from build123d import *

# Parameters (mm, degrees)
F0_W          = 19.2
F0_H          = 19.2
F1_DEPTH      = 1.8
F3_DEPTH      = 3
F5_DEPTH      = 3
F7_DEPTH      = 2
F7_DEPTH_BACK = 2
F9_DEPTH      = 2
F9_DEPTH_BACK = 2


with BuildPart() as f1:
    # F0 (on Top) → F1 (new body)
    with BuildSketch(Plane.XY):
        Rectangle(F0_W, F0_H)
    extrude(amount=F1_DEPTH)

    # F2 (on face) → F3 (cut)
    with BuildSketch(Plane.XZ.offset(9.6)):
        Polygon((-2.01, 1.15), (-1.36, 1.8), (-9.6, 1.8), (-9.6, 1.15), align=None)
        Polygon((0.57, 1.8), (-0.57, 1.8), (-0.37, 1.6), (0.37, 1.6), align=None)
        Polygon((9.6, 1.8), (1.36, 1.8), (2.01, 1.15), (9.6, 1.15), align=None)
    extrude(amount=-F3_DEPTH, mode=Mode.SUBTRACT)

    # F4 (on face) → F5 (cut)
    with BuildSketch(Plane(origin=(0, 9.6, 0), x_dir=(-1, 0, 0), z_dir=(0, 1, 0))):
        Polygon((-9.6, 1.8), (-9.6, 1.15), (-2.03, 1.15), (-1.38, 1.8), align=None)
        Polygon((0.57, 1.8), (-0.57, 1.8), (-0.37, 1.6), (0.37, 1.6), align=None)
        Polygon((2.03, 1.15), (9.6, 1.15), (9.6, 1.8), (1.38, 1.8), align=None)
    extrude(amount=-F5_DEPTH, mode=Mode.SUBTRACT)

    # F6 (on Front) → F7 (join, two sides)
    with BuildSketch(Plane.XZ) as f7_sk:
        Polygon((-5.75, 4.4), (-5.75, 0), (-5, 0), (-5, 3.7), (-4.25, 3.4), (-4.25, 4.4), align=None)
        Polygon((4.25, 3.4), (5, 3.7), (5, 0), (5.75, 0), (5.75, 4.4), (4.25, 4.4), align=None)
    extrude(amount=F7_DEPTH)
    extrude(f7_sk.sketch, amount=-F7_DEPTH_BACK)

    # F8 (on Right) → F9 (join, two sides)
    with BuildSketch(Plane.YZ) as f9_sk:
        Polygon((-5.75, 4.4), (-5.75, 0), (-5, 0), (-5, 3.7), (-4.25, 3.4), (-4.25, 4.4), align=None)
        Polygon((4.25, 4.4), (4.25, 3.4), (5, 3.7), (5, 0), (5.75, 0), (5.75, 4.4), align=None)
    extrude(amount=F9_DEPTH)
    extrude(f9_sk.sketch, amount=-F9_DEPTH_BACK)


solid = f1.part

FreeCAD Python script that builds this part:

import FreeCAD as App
import Part
import Sketcher
from FreeCAD import Vector
Q = App.Units.Quantity

doc = App.newDocument("Part")
params = doc.addObject("Spreadsheet::Sheet", "Params")
for row, (alias, value) in enumerate([
    ("sketch1_width", "19.2 mm"),
    ("pad1_length", "1.8 mm"),
    ("sketch2_width", "8.24 mm"),
    ("sketch2_width2", "7.59 mm"),
    ("sketch2_width3", "1.14 mm"),
    ("sketch2_width4", "0.74 mm"),
    ("pocket1_length", "3 mm"),
    ("sketch3_width", "7.57 mm"),
    ("sketch3_width2", "8.22 mm"),
    ("sketch3_width3", "1.14 mm"),
    ("sketch3_width4", "0.74 mm"),
    ("pocket2_length", "3 mm"),
    ("sketch4_height", "1 mm"),
    ("sketch4_width", "1.5 mm"),
    ("sketch4_height2", "4.4 mm"),
    ("sketch4_height3", "3.7 mm"),
    ("pad2_length", "2 mm"),
    ("pad2_length2", "2 mm"),
    ("sketch5_height", "1 mm"),
    ("sketch5_width", "1.5 mm"),
    ("sketch5_height2", "4.4 mm"),
    ("sketch5_height3", "3.7 mm"),
    ("pad3_length", "2 mm"),
    ("pad3_length2", "2 mm"),
], start=1):
    params.set(f"A{row}", alias)
    params.set(f"B{row}", "=" + value)
    params.setAlias(f"B{row}", alias)

body = doc.addObject("PartDesign::Body", "Body")

# Sketch on XY plane
sketch1 = body.newObject("Sketcher::SketchObject", "Sketch")
sketch1.AttachmentSupport = (doc.getObject("XY_Plane"), [""])
sketch1.MapMode = "FlatFace"
sketch1.addGeometry(Part.LineSegment(Vector(-10, 10, 0), Vector(-10, -10, 0)), False)
sketch1.addGeometry(Part.LineSegment(Vector(-10, -10, 0), Vector(10, -10, 0)), False)
sketch1.addGeometry(Part.LineSegment(Vector(10, -10, 0), Vector(10, 10, 0)), False)
sketch1.addGeometry(Part.LineSegment(Vector(10, 10, 0), Vector(-10, 10, 0)), False)
sketch1.addConstraint(Sketcher.Constraint("Coincident", 0, 2, 1, 1))
sketch1.addConstraint(Sketcher.Constraint("Coincident", 1, 2, 2, 1))
sketch1.addConstraint(Sketcher.Constraint("Coincident", 2, 2, 3, 1))
sketch1.addConstraint(Sketcher.Constraint("Coincident", 3, 2, 0, 1))
sketch1.addConstraint(Sketcher.Constraint("Vertical", 0))
sketch1.addConstraint(Sketcher.Constraint("Horizontal", 1))
sketch1.addConstraint(Sketcher.Constraint("Vertical", 2))
sketch1.addConstraint(Sketcher.Constraint("Horizontal", 3))
sketch1.addConstraint(Sketcher.Constraint("Symmetric", 0, 2, 2, 2, -1, 1))
sketch1.addConstraint(Sketcher.Constraint("Equal", 3, 0))
sketch1.addConstraint(Sketcher.Constraint("DistanceX", 1, 1, 1, 2, Q("19.2 mm")))
sketch1.setExpression("Constraints[10]", "Params.sketch1_width")
pad1 = body.newObject("PartDesign::Pad", "Pad")
pad1.Profile = sketch1
pad1.setExpression("Length", "Params.pad1_length")

# Sketch on XZ plane
sketch2 = body.newObject("Sketcher::SketchObject", "Sketch001")
sketch2.AttachmentSupport = (doc.getObject("XZ_Plane"), [""])
sketch2.MapMode = "FlatFace"
sketch2.AttachmentOffset = App.Placement(Vector(0, 0, 9.6), App.Rotation())
sketch2.addGeometry(Part.LineSegment(Vector(-2.01, 1.15, 0), Vector(-1.36, 1.8, 0)), False)
sketch2.addGeometry(Part.LineSegment(Vector(-1.36, 1.8, 0), Vector(-9.6, 1.8, 0)), False)
sketch2.addGeometry(Part.LineSegment(Vector(-9.6, 1.8, 0), Vector(-9.6, 1.15, 0)), False)
sketch2.addGeometry(Part.LineSegment(Vector(-9.6, 1.15, 0), Vector(-2.01, 1.15, 0)), False)
sketch2.addGeometry(Part.LineSegment(Vector(0.57, 1.8, 0), Vector(-0.57, 1.8, 0)), False)
sketch2.addGeometry(Part.LineSegment(Vector(-0.57, 1.8, 0), Vector(-0.37, 1.6, 0)), False)
sketch2.addGeometry(Part.LineSegment(Vector(-0.37, 1.6, 0), Vector(0.37, 1.6, 0)), False)
sketch2.addGeometry(Part.LineSegment(Vector(0.37, 1.6, 0), Vector(0.57, 1.8, 0)), False)
sketch2.addGeometry(Part.LineSegment(Vector(9.6, 1.8, 0), Vector(1.36, 1.8, 0)), False)
sketch2.addGeometry(Part.LineSegment(Vector(1.36, 1.8, 0), Vector(2.01, 1.15, 0)), False)
sketch2.addGeometry(Part.LineSegment(Vector(2.01, 1.15, 0), Vector(9.6, 1.15, 0)), False)
sketch2.addGeometry(Part.LineSegment(Vector(9.6, 1.15, 0), Vector(9.6, 1.8, 0)), False)
sketch2.addConstraint(Sketcher.Constraint("Coincident", 0, 2, 1, 1))
sketch2.addConstraint(Sketcher.Constraint("Coincident", 1, 2, 2, 1))
sketch2.addConstraint(Sketcher.Constraint("Coincident", 2, 2, 3, 1))
sketch2.addConstraint(Sketcher.Constraint("Coincident", 3, 2, 0, 1))
sketch2.addConstraint(Sketcher.Constraint("Coincident", 4, 2, 5, 1))
sketch2.addConstraint(Sketcher.Constraint("Coincident", 5, 2, 6, 1))
sketch2.addConstraint(Sketcher.Constraint("Coincident", 6, 2, 7, 1))
sketch2.addConstraint(Sketcher.Constraint("Coincident", 7, 2, 4, 1))
sketch2.addConstraint(Sketcher.Constraint("Coincident", 8, 2, 9, 1))
sketch2.addConstraint(Sketcher.Constraint("Coincident", 9, 2, 10, 1))
sketch2.addConstraint(Sketcher.Constraint("Coincident", 10, 2, 11, 1))
sketch2.addConstraint(Sketcher.Constraint("Coincident", 11, 2, 8, 1))
sketch2.addConstraint(Sketcher.Constraint("Horizontal", 1))
sketch2.addConstraint(Sketcher.Constraint("Vertical", 2))
sketch2.addConstraint(Sketcher.Constraint("Horizontal", 3))
sketch2.addConstraint(Sketcher.Constraint("Horizontal", 4))
sketch2.addConstraint(Sketcher.Constraint("Horizontal", 6))
sketch2.addConstraint(Sketcher.Constraint("Horizontal", 8))
sketch2.addConstraint(Sketcher.Constraint("Horizontal", 10))
sketch2.addConstraint(Sketcher.Constraint("Vertical", 11))
sketch2.addConstraint(Sketcher.Constraint("Symmetric", 0, 2, 8, 2, -2))
sketch2.addConstraint(Sketcher.Constraint("Symmetric", 3, 2, 9, 2, -2))
sketch2.addConstraint(Sketcher.Constraint("Perpendicular", 0, 5))
sketch2.addConstraint(Sketcher.Constraint("Perpendicular", 5, 7))
sketch2.addConstraint(Sketcher.Constraint("Perpendicular", 7, 9))
sketch2.addConstraint(Sketcher.Constraint("Horizontal", 1, 2, 4, 2))
sketch2.addConstraint(Sketcher.Constraint("Equal", 1, 8))
sketch2.addConstraint(Sketcher.Constraint("DistanceX", 1, 2, 1, 1, Q("8.24 mm")))
sketch2.addConstraint(Sketcher.Constraint("DistanceX", 3, 1, 3, 2, Q("7.59 mm")))
sketch2.addConstraint(Sketcher.Constraint("DistanceX", 4, 2, 4, 1, Q("1.14 mm")))
sketch2.addConstraint(Sketcher.Constraint("DistanceX", 6, 1, 6, 2, Q("0.74 mm")))
sketch2.addConstraint(Sketcher.Constraint("DistanceY", -1, 1, 0, 2, Q("1.8 mm")))
sketch2.addConstraint(Sketcher.Constraint("DistanceX", 1, 2, -1, 1, Q("9.6 mm")))
sketch2.addConstraint(Sketcher.Constraint("DistanceX", 4, 2, -1, 1, Q("0.57 mm")))
sketch2.setExpression("Constraints[27]", "Params.sketch2_width")
sketch2.setExpression("Constraints[28]", "Params.sketch2_width2")
sketch2.setExpression("Constraints[29]", "Params.sketch2_width3")
sketch2.setExpression("Constraints[30]", "Params.sketch2_width4")
pocket1 = body.newObject("PartDesign::Pocket", "Pocket")
pocket1.Profile = sketch2
pocket1.setExpression("Length", "Params.pocket1_length")

# Sketch on XZ plane
sketch3 = body.newObject("Sketcher::SketchObject", "Sketch002")
sketch3.AttachmentSupport = (doc.getObject("XZ_Plane"), [""])
sketch3.MapMode = "FlatFace"
sketch3.AttachmentOffset = App.Placement(Vector(0, 0, -9.6), App.Rotation())
sketch3.addGeometry(Part.LineSegment(Vector(9.6, 1.8, 0), Vector(9.6, 1.15, 0)), False)
sketch3.addGeometry(Part.LineSegment(Vector(9.6, 1.15, 0), Vector(2.03, 1.15, 0)), False)
sketch3.addGeometry(Part.LineSegment(Vector(2.03, 1.15, 0), Vector(1.38, 1.8, 0)), False)
sketch3.addGeometry(Part.LineSegment(Vector(1.38, 1.8, 0), Vector(9.6, 1.8, 0)), False)
sketch3.addGeometry(Part.LineSegment(Vector(-0.57, 1.8, 0), Vector(0.57, 1.8, 0)), False)
sketch3.addGeometry(Part.LineSegment(Vector(0.57, 1.8, 0), Vector(0.37, 1.6, 0)), False)
sketch3.addGeometry(Part.LineSegment(Vector(0.37, 1.6, 0), Vector(-0.37, 1.6, 0)), False)
sketch3.addGeometry(Part.LineSegment(Vector(-0.37, 1.6, 0), Vector(-0.57, 1.8, 0)), False)
sketch3.addGeometry(Part.LineSegment(Vector(-2.03, 1.15, 0), Vector(-9.6, 1.15, 0)), False)
sketch3.addGeometry(Part.LineSegment(Vector(-9.6, 1.15, 0), Vector(-9.6, 1.8, 0)), False)
sketch3.addGeometry(Part.LineSegment(Vector(-9.6, 1.8, 0), Vector(-1.38, 1.8, 0)), False)
sketch3.addGeometry(Part.LineSegment(Vector(-1.38, 1.8, 0), Vector(-2.03, 1.15, 0)), False)
sketch3.addConstraint(Sketcher.Constraint("Coincident", 0, 2, 1, 1))
sketch3.addConstraint(Sketcher.Constraint("Coincident", 1, 2, 2, 1))
sketch3.addConstraint(Sketcher.Constraint("Coincident", 2, 2, 3, 1))
sketch3.addConstraint(Sketcher.Constraint("Coincident", 3, 2, 0, 1))
sketch3.addConstraint(Sketcher.Constraint("Coincident", 4, 2, 5, 1))
sketch3.addConstraint(Sketcher.Constraint("Coincident", 5, 2, 6, 1))
sketch3.addConstraint(Sketcher.Constraint("Coincident", 6, 2, 7, 1))
sketch3.addConstraint(Sketcher.Constraint("Coincident", 7, 2, 4, 1))
sketch3.addConstraint(Sketcher.Constraint("Coincident", 8, 2, 9, 1))
sketch3.addConstraint(Sketcher.Constraint("Coincident", 9, 2, 10, 1))
sketch3.addConstraint(Sketcher.Constraint("Coincident", 10, 2, 11, 1))
sketch3.addConstraint(Sketcher.Constraint("Coincident", 11, 2, 8, 1))
sketch3.addConstraint(Sketcher.Constraint("Vertical", 0))
sketch3.addConstraint(Sketcher.Constraint("Horizontal", 1))
sketch3.addConstraint(Sketcher.Constraint("Horizontal", 3))
sketch3.addConstraint(Sketcher.Constraint("Horizontal", 4))
sketch3.addConstraint(Sketcher.Constraint("Horizontal", 6))
sketch3.addConstraint(Sketcher.Constraint("Horizontal", 8))
sketch3.addConstraint(Sketcher.Constraint("Vertical", 9))
sketch3.addConstraint(Sketcher.Constraint("Horizontal", 10))
sketch3.addConstraint(Sketcher.Constraint("Symmetric", 0, 2, 8, 2, -2))
sketch3.addConstraint(Sketcher.Constraint("Symmetric", 2, 2, 10, 2, -2))
sketch3.addConstraint(Sketcher.Constraint("Perpendicular", 2, 5))
sketch3.addConstraint(Sketcher.Constraint("Perpendicular", 5, 7))
sketch3.addConstraint(Sketcher.Constraint("Perpendicular", 7, 11))
sketch3.addConstraint(Sketcher.Constraint("Horizontal", 3, 2, 4, 2))
sketch3.addConstraint(Sketcher.Constraint("Equal", 1, 8))
sketch3.addConstraint(Sketcher.Constraint("DistanceX", 1, 2, 1, 1, Q("7.57 mm")))
sketch3.addConstraint(Sketcher.Constraint("DistanceX", 3, 1, 3, 2, Q("8.22 mm")))
sketch3.addConstraint(Sketcher.Constraint("DistanceX", 4, 1, 4, 2, Q("1.14 mm")))
sketch3.addConstraint(Sketcher.Constraint("DistanceX", 6, 2, 6, 1, Q("0.74 mm")))
sketch3.addConstraint(Sketcher.Constraint("DistanceX", -1, 1, 0, 2, Q("9.6 mm")))
sketch3.addConstraint(Sketcher.Constraint("DistanceY", -1, 1, 2, 2, Q("1.8 mm")))
sketch3.addConstraint(Sketcher.Constraint("DistanceX", 6, 2, 1, 2, Q("2.4 mm")))
sketch3.setExpression("Constraints[27]", "Params.sketch3_width")
sketch3.setExpression("Constraints[28]", "Params.sketch3_width2")
sketch3.setExpression("Constraints[29]", "Params.sketch3_width3")
sketch3.setExpression("Constraints[30]", "Params.sketch3_width4")
pocket2 = body.newObject("PartDesign::Pocket", "Pocket001")
pocket2.Profile = sketch3
pocket2.setExpression("Length", "Params.pocket2_length")
pocket2.Reversed = True

# Sketch on XZ plane
sketch4 = body.newObject("Sketcher::SketchObject", "Sketch003")
sketch4.AttachmentSupport = (doc.getObject("XZ_Plane"), [""])
sketch4.MapMode = "FlatFace"
sketch4.addGeometry(Part.LineSegment(Vector(-5.8, 4.4, 0), Vector(-5.8, 0, 0)), False)
sketch4.addGeometry(Part.LineSegment(Vector(-5.8, 0, 0), Vector(-5, 0, 0)), False)
sketch4.addGeometry(Part.LineSegment(Vector(-5, 0, 0), Vector(-5, 3.7, 0)), False)
sketch4.addGeometry(Part.LineSegment(Vector(-5, 3.7, 0), Vector(-4.2, 3.4, 0)), False)
sketch4.addGeometry(Part.LineSegment(Vector(-4.2, 3.4, 0), Vector(-4.2, 4.4, 0)), False)
sketch4.addGeometry(Part.LineSegment(Vector(-4.2, 4.4, 0), Vector(-5.8, 4.4, 0)), False)
sketch4.addGeometry(Part.LineSegment(Vector(4.2, 3.4, 0), Vector(5, 3.7, 0)), False)
sketch4.addGeometry(Part.LineSegment(Vector(5, 3.7, 0), Vector(5, 0, 0)), False)
sketch4.addGeometry(Part.LineSegment(Vector(5, 0, 0), Vector(5.8, 0, 0)), False)
sketch4.addGeometry(Part.LineSegment(Vector(5.8, 0, 0), Vector(5.8, 4.4, 0)), False)
sketch4.addGeometry(Part.LineSegment(Vector(5.8, 4.4, 0), Vector(4.2, 4.4, 0)), False)
sketch4.addGeometry(Part.LineSegment(Vector(4.2, 4.4, 0), Vector(4.2, 3.4, 0)), False)
sketch4.addConstraint(Sketcher.Constraint("Coincident", 0, 2, 1, 1))
sketch4.addConstraint(Sketcher.Constraint("Coincident", 1, 2, 2, 1))
sketch4.addConstraint(Sketcher.Constraint("Coincident", 2, 2, 3, 1))
sketch4.addConstraint(Sketcher.Constraint("Coincident", 3, 2, 4, 1))
sketch4.addConstraint(Sketcher.Constraint("Coincident", 4, 2, 5, 1))
sketch4.addConstraint(Sketcher.Constraint("Coincident", 5, 2, 0, 1))
sketch4.addConstraint(Sketcher.Constraint("Coincident", 6, 2, 7, 1))
sketch4.addConstraint(Sketcher.Constraint("Coincident", 7, 2, 8, 1))
sketch4.addConstraint(Sketcher.Constraint("Coincident", 8, 2, 9, 1))
sketch4.addConstraint(Sketcher.Constraint("Coincident", 9, 2, 10, 1))
sketch4.addConstraint(Sketcher.Constraint("Coincident", 10, 2, 11, 1))
sketch4.addConstraint(Sketcher.Constraint("Coincident", 11, 2, 6, 1))
sketch4.addConstraint(Sketcher.Constraint("Vertical", 0))
sketch4.addConstraint(Sketcher.Constraint("Horizontal", 1))
sketch4.addConstraint(Sketcher.Constraint("Vertical", 2))
sketch4.addConstraint(Sketcher.Constraint("Vertical", 4))
sketch4.addConstraint(Sketcher.Constraint("Horizontal", 5))
sketch4.addConstraint(Sketcher.Constraint("Vertical", 7))
sketch4.addConstraint(Sketcher.Constraint("Horizontal", 8))
sketch4.addConstraint(Sketcher.Constraint("Vertical", 9))
sketch4.addConstraint(Sketcher.Constraint("Horizontal", 10))
sketch4.addConstraint(Sketcher.Constraint("Vertical", 11))
sketch4.addConstraint(Sketcher.Constraint("Symmetric", 1, 2, 7, 2, -1, 1))
sketch4.addConstraint(Sketcher.Constraint("Symmetric", 0, 2, 8, 2, -2))
sketch4.addConstraint(Sketcher.Constraint("Symmetric", 4, 2, 10, 2, -2))
sketch4.addConstraint(Sketcher.Constraint("Horizontal", 2, 2, 6, 2))
sketch4.addConstraint(Sketcher.Constraint("Horizontal", 3, 2, 11, 2))
sketch4.addConstraint(Sketcher.Constraint("DistanceY", 4, 1, 4, 2, Q("1 mm")))
sketch4.addConstraint(Sketcher.Constraint("DistanceX", 5, 2, 5, 1, Q("1.5 mm")))
sketch4.addConstraint(Sketcher.Constraint("DistanceY", 0, 2, 0, 1, Q("4.4 mm")))
sketch4.addConstraint(Sketcher.Constraint("DistanceY", 2, 1, 2, 2, Q("3.7 mm")))
sketch4.addConstraint(Sketcher.Constraint("DistanceX", 1, 2, -1, 1, Q("5 mm")))
sketch4.addConstraint(Sketcher.Constraint("DistanceX", 3, 2, 8, 2, Q("10 mm")))
sketch4.setExpression("Constraints[27]", "Params.sketch4_height")
sketch4.setExpression("Constraints[28]", "Params.sketch4_width")
sketch4.setExpression("Constraints[29]", "Params.sketch4_height2")
sketch4.setExpression("Constraints[30]", "Params.sketch4_height3")
pad2 = body.newObject("PartDesign::Pad", "Pad001")
pad2.Profile = sketch4
pad2.Type = "TwoLengths"
pad2.setExpression("Length", "Params.pad2_length")
pad2.setExpression("Length2", "Params.pad2_length2")

# Sketch on YZ plane
sketch5 = body.newObject("Sketcher::SketchObject", "Sketch004")
sketch5.AttachmentSupport = (doc.getObject("YZ_Plane"), [""])
sketch5.MapMode = "FlatFace"
sketch5.addGeometry(Part.LineSegment(Vector(-5.8, 4.4, 0), Vector(-5.8, 0, 0)), False)
sketch5.addGeometry(Part.LineSegment(Vector(-5.8, 0, 0), Vector(-5, 0, 0)), False)
sketch5.addGeometry(Part.LineSegment(Vector(-5, 0, 0), Vector(-5, 3.7, 0)), False)
sketch5.addGeometry(Part.LineSegment(Vector(-5, 3.7, 0), Vector(-4.2, 3.4, 0)), False)
sketch5.addGeometry(Part.LineSegment(Vector(-4.2, 3.4, 0), Vector(-4.2, 4.4, 0)), False)
sketch5.addGeometry(Part.LineSegment(Vector(-4.2, 4.4, 0), Vector(-5.8, 4.4, 0)), False)
sketch5.addGeometry(Part.LineSegment(Vector(4.2, 4.4, 0), Vector(4.2, 3.4, 0)), False)
sketch5.addGeometry(Part.LineSegment(Vector(4.2, 3.4, 0), Vector(5, 3.7, 0)), False)
sketch5.addGeometry(Part.LineSegment(Vector(5, 3.7, 0), Vector(5, 0, 0)), False)
sketch5.addGeometry(Part.LineSegment(Vector(5, 0, 0), Vector(5.8, 0, 0)), False)
sketch5.addGeometry(Part.LineSegment(Vector(5.8, 0, 0), Vector(5.8, 4.4, 0)), False)
sketch5.addGeometry(Part.LineSegment(Vector(5.8, 4.4, 0), Vector(4.2, 4.4, 0)), False)
sketch5.addConstraint(Sketcher.Constraint("Coincident", 0, 2, 1, 1))
sketch5.addConstraint(Sketcher.Constraint("Coincident", 1, 2, 2, 1))
sketch5.addConstraint(Sketcher.Constraint("Coincident", 2, 2, 3, 1))
sketch5.addConstraint(Sketcher.Constraint("Coincident", 3, 2, 4, 1))
sketch5.addConstraint(Sketcher.Constraint("Coincident", 4, 2, 5, 1))
sketch5.addConstraint(Sketcher.Constraint("Coincident", 5, 2, 0, 1))
sketch5.addConstraint(Sketcher.Constraint("Coincident", 6, 2, 7, 1))
sketch5.addConstraint(Sketcher.Constraint("Coincident", 7, 2, 8, 1))
sketch5.addConstraint(Sketcher.Constraint("Coincident", 8, 2, 9, 1))
sketch5.addConstraint(Sketcher.Constraint("Coincident", 9, 2, 10, 1))
sketch5.addConstraint(Sketcher.Constraint("Coincident", 10, 2, 11, 1))
sketch5.addConstraint(Sketcher.Constraint("Coincident", 11, 2, 6, 1))
sketch5.addConstraint(Sketcher.Constraint("Vertical", 0))
sketch5.addConstraint(Sketcher.Constraint("Horizontal", 1))
sketch5.addConstraint(Sketcher.Constraint("Vertical", 2))
sketch5.addConstraint(Sketcher.Constraint("Vertical", 4))
sketch5.addConstraint(Sketcher.Constraint("Horizontal", 5))
sketch5.addConstraint(Sketcher.Constraint("Vertical", 6))
sketch5.addConstraint(Sketcher.Constraint("Vertical", 8))
sketch5.addConstraint(Sketcher.Constraint("Horizontal", 9))
sketch5.addConstraint(Sketcher.Constraint("Vertical", 10))
sketch5.addConstraint(Sketcher.Constraint("Horizontal", 11))
sketch5.addConstraint(Sketcher.Constraint("Symmetric", 1, 2, 8, 2, -1, 1))
sketch5.addConstraint(Sketcher.Constraint("Symmetric", 3, 2, 6, 2, -2))
sketch5.addConstraint(Sketcher.Constraint("Symmetric", 0, 2, 9, 2, -2))
sketch5.addConstraint(Sketcher.Constraint("Horizontal", 2, 2, 7, 2))
sketch5.addConstraint(Sketcher.Constraint("Horizontal", 5, 2, 10, 2))
sketch5.addConstraint(Sketcher.Constraint("DistanceY", 4, 1, 4, 2, Q("1 mm")))
sketch5.addConstraint(Sketcher.Constraint("DistanceX", 5, 2, 5, 1, Q("1.5 mm")))
sketch5.addConstraint(Sketcher.Constraint("DistanceY", 0, 2, 0, 1, Q("4.4 mm")))
sketch5.addConstraint(Sketcher.Constraint("DistanceY", 2, 1, 2, 2, Q("3.7 mm")))
sketch5.addConstraint(Sketcher.Constraint("DistanceX", 1, 2, -1, 1, Q("5 mm")))
sketch5.addConstraint(Sketcher.Constraint("DistanceX", 5, 2, 6, 2, Q("10 mm")))
sketch5.setExpression("Constraints[27]", "Params.sketch5_height")
sketch5.setExpression("Constraints[28]", "Params.sketch5_width")
sketch5.setExpression("Constraints[29]", "Params.sketch5_height2")
sketch5.setExpression("Constraints[30]", "Params.sketch5_height3")
pad3 = body.newObject("PartDesign::Pad", "Pad002")
pad3.Profile = sketch5
pad3.Type = "TwoLengths"
pad3.setExpression("Length", "Params.pad3_length")
pad3.setExpression("Length2", "Params.pad3_length2")

doc.recompute()
